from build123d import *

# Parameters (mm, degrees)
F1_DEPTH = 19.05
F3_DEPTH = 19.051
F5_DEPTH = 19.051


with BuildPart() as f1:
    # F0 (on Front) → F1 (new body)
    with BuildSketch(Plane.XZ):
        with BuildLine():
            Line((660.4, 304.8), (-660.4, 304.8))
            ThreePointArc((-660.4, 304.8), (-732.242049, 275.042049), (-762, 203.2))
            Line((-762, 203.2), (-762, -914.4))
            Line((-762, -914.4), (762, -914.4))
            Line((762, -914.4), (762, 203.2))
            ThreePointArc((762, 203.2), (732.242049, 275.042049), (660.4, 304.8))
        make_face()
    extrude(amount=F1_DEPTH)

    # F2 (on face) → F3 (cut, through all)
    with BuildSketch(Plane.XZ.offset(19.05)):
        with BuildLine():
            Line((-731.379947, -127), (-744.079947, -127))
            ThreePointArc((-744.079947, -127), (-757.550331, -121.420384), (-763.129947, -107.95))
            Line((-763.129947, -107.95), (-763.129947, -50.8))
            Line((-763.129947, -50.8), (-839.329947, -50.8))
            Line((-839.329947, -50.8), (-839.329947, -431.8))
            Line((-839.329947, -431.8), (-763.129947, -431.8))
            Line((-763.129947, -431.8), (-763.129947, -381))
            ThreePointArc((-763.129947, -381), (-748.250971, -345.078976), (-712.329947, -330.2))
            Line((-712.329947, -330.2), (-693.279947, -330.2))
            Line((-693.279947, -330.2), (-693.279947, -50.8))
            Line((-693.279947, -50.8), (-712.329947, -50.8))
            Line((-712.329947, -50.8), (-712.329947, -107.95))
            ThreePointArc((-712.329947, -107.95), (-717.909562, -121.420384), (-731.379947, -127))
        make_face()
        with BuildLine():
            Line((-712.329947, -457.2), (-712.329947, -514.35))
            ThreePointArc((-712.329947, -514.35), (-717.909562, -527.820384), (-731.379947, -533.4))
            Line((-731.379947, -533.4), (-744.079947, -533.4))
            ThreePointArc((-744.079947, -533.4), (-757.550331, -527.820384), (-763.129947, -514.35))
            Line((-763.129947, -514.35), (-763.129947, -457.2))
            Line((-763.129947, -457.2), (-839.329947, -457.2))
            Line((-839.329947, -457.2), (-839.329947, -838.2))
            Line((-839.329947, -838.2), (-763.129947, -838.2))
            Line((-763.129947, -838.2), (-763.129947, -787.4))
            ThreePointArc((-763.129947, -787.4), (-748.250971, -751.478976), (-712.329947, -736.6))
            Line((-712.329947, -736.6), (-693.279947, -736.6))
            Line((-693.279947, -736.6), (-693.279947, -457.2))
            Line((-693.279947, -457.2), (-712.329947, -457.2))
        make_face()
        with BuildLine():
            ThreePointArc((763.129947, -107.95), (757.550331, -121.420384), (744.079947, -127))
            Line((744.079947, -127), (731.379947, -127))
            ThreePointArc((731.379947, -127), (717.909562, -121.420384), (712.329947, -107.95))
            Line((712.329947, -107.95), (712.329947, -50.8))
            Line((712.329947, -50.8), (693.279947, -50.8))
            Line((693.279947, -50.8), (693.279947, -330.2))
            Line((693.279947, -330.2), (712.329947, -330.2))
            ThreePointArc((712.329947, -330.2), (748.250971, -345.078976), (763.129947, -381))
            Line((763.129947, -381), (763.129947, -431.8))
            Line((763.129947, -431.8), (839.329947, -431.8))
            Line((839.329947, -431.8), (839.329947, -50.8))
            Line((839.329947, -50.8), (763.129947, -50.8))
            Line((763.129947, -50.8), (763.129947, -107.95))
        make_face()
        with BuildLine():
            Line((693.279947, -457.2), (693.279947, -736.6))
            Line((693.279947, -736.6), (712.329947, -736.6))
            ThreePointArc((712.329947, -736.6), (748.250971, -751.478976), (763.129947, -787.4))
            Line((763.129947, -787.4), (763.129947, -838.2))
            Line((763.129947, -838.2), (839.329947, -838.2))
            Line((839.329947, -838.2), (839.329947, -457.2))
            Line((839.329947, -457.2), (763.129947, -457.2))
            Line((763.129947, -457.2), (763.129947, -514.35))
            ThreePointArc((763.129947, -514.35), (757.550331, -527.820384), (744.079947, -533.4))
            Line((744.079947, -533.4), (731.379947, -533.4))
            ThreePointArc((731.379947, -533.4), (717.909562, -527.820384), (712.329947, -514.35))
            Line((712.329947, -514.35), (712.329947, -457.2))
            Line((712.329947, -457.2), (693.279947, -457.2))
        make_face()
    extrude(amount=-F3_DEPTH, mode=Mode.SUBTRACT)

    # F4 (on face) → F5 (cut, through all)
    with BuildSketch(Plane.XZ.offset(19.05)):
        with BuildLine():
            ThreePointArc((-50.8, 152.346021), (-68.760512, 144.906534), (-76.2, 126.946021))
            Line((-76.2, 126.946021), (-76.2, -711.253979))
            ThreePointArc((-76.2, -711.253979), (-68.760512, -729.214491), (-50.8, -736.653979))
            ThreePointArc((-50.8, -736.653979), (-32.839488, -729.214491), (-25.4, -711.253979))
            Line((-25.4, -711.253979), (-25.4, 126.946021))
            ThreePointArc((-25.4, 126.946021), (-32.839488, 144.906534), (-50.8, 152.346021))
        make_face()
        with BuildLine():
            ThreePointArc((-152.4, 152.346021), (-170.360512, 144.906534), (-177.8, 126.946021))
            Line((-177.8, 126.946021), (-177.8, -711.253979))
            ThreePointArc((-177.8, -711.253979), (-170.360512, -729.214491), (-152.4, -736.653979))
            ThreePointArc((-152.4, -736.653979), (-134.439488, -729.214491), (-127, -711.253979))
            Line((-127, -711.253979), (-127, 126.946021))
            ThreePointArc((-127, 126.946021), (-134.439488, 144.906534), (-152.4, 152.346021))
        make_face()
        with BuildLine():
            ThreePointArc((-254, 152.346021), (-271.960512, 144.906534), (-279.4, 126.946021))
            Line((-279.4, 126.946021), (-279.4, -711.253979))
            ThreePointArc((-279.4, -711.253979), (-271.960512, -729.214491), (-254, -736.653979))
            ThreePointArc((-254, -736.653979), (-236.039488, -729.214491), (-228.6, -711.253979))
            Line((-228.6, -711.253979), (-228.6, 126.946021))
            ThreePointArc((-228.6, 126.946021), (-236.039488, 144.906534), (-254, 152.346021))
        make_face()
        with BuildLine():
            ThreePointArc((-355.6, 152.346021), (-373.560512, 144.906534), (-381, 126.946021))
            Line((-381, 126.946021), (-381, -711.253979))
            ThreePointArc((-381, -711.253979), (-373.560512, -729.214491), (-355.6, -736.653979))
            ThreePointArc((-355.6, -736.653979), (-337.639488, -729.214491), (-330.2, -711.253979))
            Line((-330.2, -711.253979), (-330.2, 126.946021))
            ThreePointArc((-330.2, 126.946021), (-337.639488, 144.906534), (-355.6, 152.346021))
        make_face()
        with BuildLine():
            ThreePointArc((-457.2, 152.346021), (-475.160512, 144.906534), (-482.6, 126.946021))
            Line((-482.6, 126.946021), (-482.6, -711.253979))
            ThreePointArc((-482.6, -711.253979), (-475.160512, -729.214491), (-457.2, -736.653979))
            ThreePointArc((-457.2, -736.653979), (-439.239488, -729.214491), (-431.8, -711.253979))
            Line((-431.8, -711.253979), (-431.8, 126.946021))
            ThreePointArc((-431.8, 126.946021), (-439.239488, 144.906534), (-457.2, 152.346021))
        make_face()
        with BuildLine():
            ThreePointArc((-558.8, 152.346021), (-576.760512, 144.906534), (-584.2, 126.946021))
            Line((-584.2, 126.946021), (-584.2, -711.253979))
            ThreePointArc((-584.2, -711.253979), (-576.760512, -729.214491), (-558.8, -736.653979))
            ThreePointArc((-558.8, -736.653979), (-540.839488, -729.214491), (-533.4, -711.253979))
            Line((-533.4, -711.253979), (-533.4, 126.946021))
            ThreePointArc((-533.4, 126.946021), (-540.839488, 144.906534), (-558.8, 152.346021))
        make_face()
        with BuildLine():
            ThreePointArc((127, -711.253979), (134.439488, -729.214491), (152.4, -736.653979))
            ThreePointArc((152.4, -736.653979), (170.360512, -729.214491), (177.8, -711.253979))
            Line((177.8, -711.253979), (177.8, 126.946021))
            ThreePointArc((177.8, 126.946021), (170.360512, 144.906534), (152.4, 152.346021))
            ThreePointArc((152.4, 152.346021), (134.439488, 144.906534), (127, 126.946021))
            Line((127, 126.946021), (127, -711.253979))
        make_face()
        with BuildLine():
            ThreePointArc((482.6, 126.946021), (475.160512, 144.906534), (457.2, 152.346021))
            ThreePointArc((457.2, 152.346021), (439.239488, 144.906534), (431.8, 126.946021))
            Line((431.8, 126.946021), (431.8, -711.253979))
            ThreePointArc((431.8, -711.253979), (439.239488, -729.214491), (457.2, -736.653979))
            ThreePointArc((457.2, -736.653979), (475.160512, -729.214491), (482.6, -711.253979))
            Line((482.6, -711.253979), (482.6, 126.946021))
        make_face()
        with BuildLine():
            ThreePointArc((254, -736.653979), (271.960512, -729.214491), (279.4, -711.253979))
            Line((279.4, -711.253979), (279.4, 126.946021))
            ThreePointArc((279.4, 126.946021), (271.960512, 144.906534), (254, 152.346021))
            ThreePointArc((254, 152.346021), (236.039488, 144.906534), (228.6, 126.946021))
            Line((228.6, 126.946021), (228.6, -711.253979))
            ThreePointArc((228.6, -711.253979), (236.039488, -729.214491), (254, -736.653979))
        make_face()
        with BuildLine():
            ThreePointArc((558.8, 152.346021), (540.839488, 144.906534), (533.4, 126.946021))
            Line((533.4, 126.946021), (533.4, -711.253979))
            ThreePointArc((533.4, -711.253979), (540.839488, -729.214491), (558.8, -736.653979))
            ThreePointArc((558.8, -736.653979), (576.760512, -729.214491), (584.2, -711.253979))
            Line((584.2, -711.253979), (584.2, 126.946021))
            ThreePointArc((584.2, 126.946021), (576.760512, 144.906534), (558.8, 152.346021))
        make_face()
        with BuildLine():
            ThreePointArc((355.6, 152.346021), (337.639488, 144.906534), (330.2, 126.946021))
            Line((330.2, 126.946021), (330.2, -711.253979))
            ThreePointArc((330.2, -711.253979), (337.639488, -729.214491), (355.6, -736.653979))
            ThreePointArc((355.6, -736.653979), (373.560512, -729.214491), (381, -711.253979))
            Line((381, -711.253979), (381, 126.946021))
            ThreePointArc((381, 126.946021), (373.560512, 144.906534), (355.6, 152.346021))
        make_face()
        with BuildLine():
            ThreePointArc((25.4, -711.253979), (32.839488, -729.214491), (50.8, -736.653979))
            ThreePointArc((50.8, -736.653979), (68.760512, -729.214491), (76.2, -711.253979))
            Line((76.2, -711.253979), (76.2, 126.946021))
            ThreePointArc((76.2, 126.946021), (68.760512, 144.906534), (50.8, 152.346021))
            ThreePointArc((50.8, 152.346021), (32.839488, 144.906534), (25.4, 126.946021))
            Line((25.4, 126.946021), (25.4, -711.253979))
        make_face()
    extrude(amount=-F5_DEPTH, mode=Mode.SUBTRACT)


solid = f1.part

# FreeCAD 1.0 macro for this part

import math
import FreeCAD as App
import Part
import Sketcher
from FreeCAD import Vector
Q = App.Units.Quantity

doc = App.newDocument("Part")
body = doc.addObject("PartDesign::Body", "Body")

sketch1 = body.newObject("Sketcher::SketchObject", "Sketch")
sketch1.AttachmentSupport = (doc.getObject("XZ_Plane"), [""])
sketch1.MapMode = "FlatFace"
sketch1.addGeometry([
    Part.LineSegment(Vector(660, 305, 0), Vector(-660, 305, 0)),
    Part.ArcOfCircle(Part.Circle(Vector(-660, 203, 0), Vector(0, 0, 1), 102), math.radians(90), math.radians(180)),
    Part.LineSegment(Vector(-762, 203, 0), Vector(-762, -914, 0)),
    Part.LineSegment(Vector(-762, -914, 0), Vector(762, -914, 0)),
    Part.LineSegment(Vector(762, -914, 0), Vector(762, 203, 0)),
    Part.ArcOfCircle(Part.Circle(Vector(660, 203, 0), Vector(0, 0, 1), 102), math.radians(0), math.radians(90)),
], False)
sketch1.addConstraint([
    Sketcher.Constraint("Tangent", 0, 2, 1, 1),
    Sketcher.Constraint("Tangent", 1, 2, 2, 1),
    Sketcher.Constraint("Coincident", 2, 2, 3, 1),
    Sketcher.Constraint("Coincident", 3, 2, 4, 1),
    Sketcher.Constraint("Tangent", 4, 2, 5, 1),
    Sketcher.Constraint("Tangent", 5, 2, 0, 1),
    Sketcher.Constraint("Horizontal", 0),
    Sketcher.Constraint("Vertical", 2),
    Sketcher.Constraint("Horizontal", 3),
    Sketcher.Constraint("Vertical", 4),
    Sketcher.Constraint("Equal", 1, 5),
    Sketcher.Constraint("Radius", 1, Q("4 in")),
    Sketcher.Constraint("DistanceX", 0, 2, 0, 1, Q("52 in")),
    Sketcher.Constraint("DistanceY", 2, 2, 2, 1, Q("44 in")),
    Sketcher.Constraint("DistanceX", 1, 3, -1, 1, Q("26 in")),
    Sketcher.Constraint("DistanceY", -1, 1, 1, 3, Q("8 in")),
])
pad1 = body.newObject("PartDesign::Pad", "Pad")
pad1.Profile = sketch1
pad1.Length = Q("0.75 in")

sketch2 = body.newObject("Sketcher::SketchObject", "Sketch001")
sketch2.AttachmentSupport = (doc.getObject("XZ_Plane"), [""])
sketch2.MapMode = "FlatFace"
sketch2.AttachmentOffset = App.Placement(Vector(0, 0, 0.75 * 25.4), App.Rotation())
sketch2.addGeometry([
    Part.LineSegment(Vector(-731, -127, 0), Vector(-744, -127, 0)),
    Part.ArcOfCircle(Part.Circle(Vector(-744, -108, 0), Vector(0, 0, 1), 19), math.radians(-180), math.radians(-90)),
    Part.LineSegment(Vector(-763, -108, 0), Vector(-763, -51, 0)),
    Part.LineSegment(Vector(-763, -51, 0), Vector(-839, -51, 0)),
    Part.LineSegment(Vector(-839, -51, 0), Vector(-839, -432, 0)),
    Part.LineSegment(Vector(-839, -432, 0), Vector(-763, -432, 0)),
    Part.LineSegment(Vector(-763, -432, 0), Vector(-763, -381, 0)),
    Part.ArcOfCircle(Part.Circle(Vector(-712, -381, 0), Vector(0, 0, 1), 51), math.radians(90), math.radians(180)),
    Part.LineSegment(Vector(-712, -330, 0), Vector(-693, -330, 0)),
    Part.LineSegment(Vector(-693, -330, 0), Vector(-693, -51, 0)),
    Part.LineSegment(Vector(-693, -51, 0), Vector(-712, -51, 0)),
    Part.LineSegment(Vector(-712, -51, 0), Vector(-712, -108, 0)),
    Part.ArcOfCircle(Part.Circle(Vector(-731, -108, 0), Vector(0, 0, 1), 19), math.radians(-90), math.radians(0)),
    Part.LineSegment(Vector(-712, -457, 0), Vector(-712, -514, 0)),
    Part.ArcOfCircle(Part.Circle(Vector(-731, -514, 0), Vector(0, 0, 1), 19), math.radians(-90), math.radians(0)),
    Part.LineSegment(Vector(-731, -533, 0), Vector(-744, -533, 0)),
    Part.ArcOfCircle(Part.Circle(Vector(-744, -514, 0), Vector(0, 0, 1), 19), math.radians(-180), math.radians(-90)),
    Part.LineSegment(Vector(-763, -514, 0), Vector(-763, -457, 0)),
    Part.LineSegment(Vector(-763, -457, 0), Vector(-839, -457, 0)),
    Part.LineSegment(Vector(-839, -457, 0), Vector(-839, -838, 0)),
    Part.LineSegment(Vector(-839, -838, 0), Vector(-763, -838, 0)),
    Part.LineSegment(Vector(-763, -838, 0), Vector(-763, -787, 0)),
    Part.ArcOfCircle(Part.Circle(Vector(-712, -787, 0), Vector(0, 0, 1), 51), math.radians(90), math.radians(180)),
    Part.LineSegment(Vector(-712, -737, 0), Vector(-693, -737, 0)),
    Part.LineSegment(Vector(-693, -737, 0), Vector(-693, -457, 0)),
    Part.LineSegment(Vector(-693, -457, 0), Vector(-712, -457, 0)),
    Part.ArcOfCircle(Part.Circle(Vector(744, -108, 0), Vector(0, 0, 1), 19), math.radians(-90), math.radians(0)),
    Part.LineSegment(Vector(744, -127, 0), Vector(731, -127, 0)),
    Part.ArcOfCircle(Part.Circle(Vector(731, -108, 0), Vector(0, 0, 1), 19), math.radians(180), math.radians(270)),
    Part.LineSegment(Vector(712, -108, 0), Vector(712, -51, 0)),
    Part.LineSegment(Vector(712, -51, 0), Vector(693, -51, 0)),
    Part.LineSegment(Vector(693, -51, 0), Vector(693, -330, 0)),
    Part.LineSegment(Vector(693, -330, 0), Vector(712, -330, 0)),
    Part.ArcOfCircle(Part.Circle(Vector(712, -381, 0), Vector(0, 0, 1), 51), math.radians(0), math.radians(90)),
    Part.LineSegment(Vector(763, -381, 0), Vector(763, -432, 0)),
    Part.LineSegment(Vector(763, -432, 0), Vector(839, -432, 0)),
    Part.LineSegment(Vector(839, -432, 0), Vector(839, -51, 0)),
    Part.LineSegment(Vector(839, -51, 0), Vector(763, -51, 0)),
    Part.LineSegment(Vector(763, -51, 0), Vector(763, -108, 0)),
    Part.LineSegment(Vector(693, -457, 0), Vector(693, -737, 0)),
    Part.LineSegment(Vector(693, -737, 0), Vector(712, -737, 0)),
    Part.ArcOfCircle(Part.Circle(Vector(712, -787, 0), Vector(0, 0, 1), 51), math.radians(0), math.radians(90)),
    Part.LineSegment(Vector(763, -787, 0), Vector(763, -838, 0)),
    Part.LineSegment(Vector(763, -838, 0), Vector(839, -838, 0)),
    Part.LineSegment(Vector(839, -838, 0), Vector(839, -457, 0)),
    Part.LineSegment(Vector(839, -457, 0), Vector(763, -457, 0)),
    Part.LineSegment(Vector(763, -457, 0), Vector(763, -514, 0)),
    Part.ArcOfCircle(Part.Circle(Vector(744, -514, 0), Vector(0, 0, 1), 19), math.radians(-90), math.radians(0)),
    Part.LineSegment(Vector(744, -533, 0), Vector(731, -533, 0)),
    Part.ArcOfCircle(Part.Circle(Vector(731, -514, 0), Vector(0, 0, 1), 19), math.radians(180), math.radians(270)),
    Part.LineSegment(Vector(712, -514, 0), Vector(712, -457, 0)),
    Part.LineSegment(Vector(712, -457, 0), Vector(693, -457, 0)),
], False)
sketch2.addConstraint([
    Sketcher.Constraint("Tangent", 0, 2, 1, 2),
    Sketcher.Constraint("Tangent", 1, 1, 2, 1),
    Sketcher.Constraint("Coincident", 2, 2, 3, 1),
    Sketcher.Constraint("Coincident", 3, 2, 4, 1),
    Sketcher.Constraint("Coincident", 4, 2, 5, 1),
    Sketcher.Constraint("Coincident", 5, 2, 6, 1),
    Sketcher.Constraint("Tangent", 6, 2, 7, 2),
    Sketcher.Constraint("Tangent", 7, 1, 8, 1),
    Sketcher.Constraint("Coincident", 8, 2, 9, 1),
    Sketcher.Constraint("Coincident", 9, 2, 10, 1),
    Sketcher.Constraint("Coincident", 10, 2, 11, 1),
    Sketcher.Constraint("Tangent", 11, 2, 12, 2),
    Sketcher.Constraint("Tangent", 12, 1, 0, 1),
    Sketcher.Constraint("Tangent", 13, 2, 14, 2),
    Sketcher.Constraint("Tangent", 14, 1, 15, 1),
    Sketcher.Constraint("Tangent", 15, 2, 16, 2),
    Sketcher.Constraint("Tangent", 16, 1, 17, 1),
    Sketcher.Constraint("Coincident", 17, 2, 18, 1),
    Sketcher.Constraint("Coincident", 18, 2, 19, 1),
    Sketcher.Constraint("Coincident", 19, 2, 20, 1),
    Sketcher.Constraint("Coincident", 20, 2, 21, 1),
    Sketcher.Constraint("Tangent", 21, 2, 22, 2),
    Sketcher.Constraint("Tangent", 22, 1, 23, 1),
    Sketcher.Constraint("Coincident", 23, 2, 24, 1),
    Sketcher.Constraint("Coincident", 24, 2, 25, 1),
    Sketcher.Constraint("Coincident", 25, 2, 13, 1),
    Sketcher.Constraint("Tangent", 26, 1, 27, 1),
    Sketcher.Constraint("Tangent", 27, 2, 28, 2),
    Sketcher.Constraint("Tangent", 28, 1, 29, 1),
    Sketcher.Constraint("Coincident", 29, 2, 30, 1),
    Sketcher.Constraint("Coincident", 30, 2, 31, 1),
    Sketcher.Constraint("Coincident", 31, 2, 32, 1),
    Sketcher.Constraint("Tangent", 32, 2, 33, 2),
    Sketcher.Constraint("Tangent", 33, 1, 34, 1),
    Sketcher.Constraint("Coincident", 34, 2, 35, 1),
    Sketcher.Constraint("Coincident", 35, 2, 36, 1),
    Sketcher.Constraint("Coincident", 36, 2, 37, 1),
    Sketcher.Constraint("Coincident", 37, 2, 38, 1),
    Sketcher.Constraint("Tangent", 38, 2, 26, 2),
    Sketcher.Constraint("Coincident", 39, 2, 40, 1),
    Sketcher.Constraint("Tangent", 40, 2, 41, 2),
    Sketcher.Constraint("Tangent", 41, 1, 42, 1),
    Sketcher.Constraint("Coincident", 42, 2, 43, 1),
    Sketcher.Constraint("Coincident", 43, 2, 44, 1),
    Sketcher.Constraint("Coincident", 44, 2, 45, 1),
    Sketcher.Constraint("Coincident", 45, 2, 46, 1),
    Sketcher.Constraint("Tangent", 46, 2, 47, 2),
    Sketcher.Constraint("Tangent", 47, 1, 48, 1),
    Sketcher.Constraint("Tangent", 48, 2, 49, 2),
    Sketcher.Constraint("Tangent", 49, 1, 50, 1),
    Sketcher.Constraint("Coincident", 50, 2, 51, 1),
    Sketcher.Constraint("Coincident", 51, 2, 39, 1),
    Sketcher.Constraint("Horizontal", 0),
    Sketcher.Constraint("Vertical", 2),
    Sketcher.Constraint("Horizontal", 3),
    Sketcher.Constraint("Vertical", 4),
    Sketcher.Constraint("Horizontal", 5),
    Sketcher.Constraint("Vertical", 6),
    Sketcher.Constraint("Horizontal", 8),
    Sketcher.Constraint("Vertical", 9),
    Sketcher.Constraint("Horizontal", 10),
    Sketcher.Constraint("Vertical", 11),
    Sketcher.Constraint("Vertical", 13),
    Sketcher.Constraint("Horizontal", 15),
    Sketcher.Constraint("Vertical", 17),
    Sketcher.Constraint("Horizontal", 18),
    Sketcher.Constraint("Vertical", 19),
    Sketcher.Constraint("Horizontal", 20),
    Sketcher.Constraint("Vertical", 21),
    Sketcher.Constraint("Horizontal", 23),
    Sketcher.Constraint("Vertical", 24),
    Sketcher.Constraint("Horizontal", 25),
    Sketcher.Constraint("Horizontal", 27),
    Sketcher.Constraint("Vertical", 29),
    Sketcher.Constraint("Horizontal", 30),
    Sketcher.Constraint("Vertical", 31),
    Sketcher.Constraint("Horizontal", 32),
    Sketcher.Constraint("Vertical", 34),
    Sketcher.Constraint("Horizontal", 35),
    Sketcher.Constraint("Vertical", 36),
    Sketcher.Constraint("Horizontal", 37),
    Sketcher.Constraint("Vertical", 38),
    Sketcher.Constraint("Vertical", 39),
    Sketcher.Constraint("Horizontal", 40),
    Sketcher.Constraint("Vertical", 42),
    Sketcher.Constraint("Horizontal", 43),
    Sketcher.Constraint("Vertical", 44),
    Sketcher.Constraint("Horizontal", 45),
    Sketcher.Constraint("Vertical", 46),
    Sketcher.Constraint("Horizontal", 48),
    Sketcher.Constraint("Vertical", 50),
    Sketcher.Constraint("Horizontal", 51),
    Sketcher.Constraint("Equal", 1, 12),
    Sketcher.Constraint("Equal", 12, 14),
    Sketcher.Constraint("Equal", 14, 16),
    Sketcher.Constraint("Equal", 7, 22),
    Sketcher.Constraint("Equal", 16, 26),
    Sketcher.Constraint("Equal", 26, 28),
    Sketcher.Constraint("Equal", 22, 33),
    Sketcher.Constraint("Equal", 33, 41),
    Sketcher.Constraint("Equal", 28, 47),
    Sketcher.Constraint("Equal", 47, 49),
    Sketcher.Constraint("Symmetric", 1, 3, 26, 3, -2),
    Sketcher.Constraint("Symmetric", 7, 3, 33, 3, -2),
    Sketcher.Constraint("Symmetric", 22, 3, 41, 3, -2),
    Sketcher.Constraint("Symmetric", 16, 3, 47, 3, -2),
    Sketcher.Constraint("Symmetric", 10, 2, 29, 2, -2),
    Sketcher.Constraint("Symmetric", 4, 2, 35, 2, -2),
    Sketcher.Constraint("Symmetric", 19, 2, 43, 2, -2),
    Sketcher.Constraint("Symmetric", 25, 2, 50, 2, -2),
    Sketcher.Constraint("Horizontal", 3, 2, 9, 2),
    Sketcher.Constraint("Horizontal", 18, 2, 24, 2),
    Sketcher.Constraint("Horizontal", 30, 2, 36, 2),
    Sketcher.Constraint("Horizontal", 25, 2, 44, 2),
    Sketcher.Constraint("Vertical", 12, 3, 14, 3),
    Sketcher.Constraint("Vertical", 1, 3, 16, 3),
    Sketcher.Constraint("Vertical", 7, 3, 22, 3),
    Sketcher.Constraint("Vertical", 2, 2, 5, 2),
    Sketcher.Constraint("Vertical", 7, 1, 10, 2),
    Sketcher.Constraint("Vertical", 4, 2, 18, 2),
    Sketcher.Constraint("Vertical", 9, 2, 23, 2),
    Sketcher.Constraint("Vertical", 31, 2, 39, 2),
    Sketcher.Constraint("Equal", 25, 30),
    Sketcher.Constraint("Equal", 11, 13),
    Sketcher.Constraint("Equal", 4, 19),
    Sketcher.Constraint("Equal", 6, 21),
    Sketcher.Constraint("Radius", 7, Q("2.0000001 in")),
    Sketcher.Constraint("DistanceX", 3, 2, 3, 1, Q("3 in")),
    Sketcher.Constraint("DistanceY", 4, 2, 4, 1, Q("15 in")),
    Sketcher.Constraint("DistanceY", 6, 1, 6, 2, Q("2 in")),
    Sketcher.Constraint("Radius", 1, Q("0.75 in")),
    Sketcher.Constraint("DistanceY", 7, 3, -1, 1, Q("15.0000001 in")),
    Sketcher.Constraint("DistanceY", 22, 3, -1, 1, Q("31.0000001 in")),
    Sketcher.Constraint("DistanceY", 0, 2, -1, 1, Q("5 in")),
    Sketcher.Constraint("DistanceX", 8, 1, 8, 2, Q("0.75 in")),
    Sketcher.Constraint("DistanceX", 1, 3, -1, 1, Q("744.079946 mm")),
])
pocket1 = body.newObject("PartDesign::Pocket", "Pocket")
pocket1.Profile = sketch2
pocket1.Type = "ThroughAll"

sketch3 = body.newObject("Sketcher::SketchObject", "Sketch002")
sketch3.AttachmentSupport = (doc.getObject("XZ_Plane"), [""])
sketch3.MapMode = "FlatFace"
sketch3.AttachmentOffset = App.Placement(Vector(0, 0, 0.75 * 25.4), App.Rotation())
sketch3.addGeometry([
    Part.ArcOfCircle(Part.Circle(Vector(-51, 127, 0), Vector(0, 0, 1), 25), math.radians(90), math.radians(180)),
    Part.LineSegment(Vector(-76, 127, 0), Vector(-76, -711, 0)),
    Part.ArcOfCircle(Part.Circle(Vector(-51, -711, 0), Vector(0, 0, 1), 25), math.radians(-180), math.radians(-90)),
    Part.ArcOfCircle(Part.Circle(Vector(-51, -711, 0), Vector(0, 0, 1), 25), math.radians(-90), math.radians(0)),
    Part.LineSegment(Vector(-25, -711, 0), Vector(-25, 127, 0)),
    Part.ArcOfCircle(Part.Circle(Vector(-51, 127, 0), Vector(0, 0, 1), 25), math.radians(0), math.radians(90)),
    Part.ArcOfCircle(Part.Circle(Vector(-152, 127, 0), Vector(0, 0, 1), 25), math.radians(90), math.radians(180)),
    Part.LineSegment(Vector(-178, 127, 0), Vector(-178, -711, 0)),
    Part.ArcOfCircle(Part.Circle(Vector(-152, -711, 0), Vector(0, 0, 1), 25), math.radians(-180), math.radians(-90)),
    Part.ArcOfCircle(Part.Circle(Vector(-152, -711, 0), Vector(0, 0, 1), 25), math.radians(-90), math.radians(0)),
    Part.LineSegment(Vector(-127, -711, 0), Vector(-127, 127, 0)),
    Part.ArcOfCircle(Part.Circle(Vector(-152, 127, 0), Vector(0, 0, 1), 25), math.radians(0), math.radians(90)),
    Part.ArcOfCircle(Part.Circle(Vector(-254, 127, 0), Vector(0, 0, 1), 25), math.radians(90), math.radians(180)),
    Part.LineSegment(Vector(-279, 127, 0), Vector(-279, -711, 0)),
    Part.ArcOfCircle(Part.Circle(Vector(-254, -711, 0), Vector(0, 0, 1), 25), math.radians(-180), math.radians(-90)),
    Part.ArcOfCircle(Part.Circle(Vector(-254, -711, 0), Vector(0, 0, 1), 25), math.radians(-90), math.radians(0)),
    Part.LineSegment(Vector(-229, -711, 0), Vector(-229, 127, 0)),
    Part.ArcOfCircle(Part.Circle(Vector(-254, 127, 0), Vector(0, 0, 1), 25), math.radians(0), math.radians(90)),
    Part.ArcOfCircle(Part.Circle(Vector(-356, 127, 0), Vector(0, 0, 1), 25), math.radians(90), math.radians(180)),
    Part.LineSegment(Vector(-381, 127, 0), Vector(-381, -711, 0)),
    Part.ArcOfCircle(Part.Circle(Vector(-356, -711, 0), Vector(0, 0, 1), 25), math.radians(-180), math.radians(-90)),
    Part.ArcOfCircle(Part.Circle(Vector(-356, -711, 0), Vector(0, 0, 1), 25), math.radians(-90), math.radians(0)),
    Part.LineSegment(Vector(-330, -711, 0), Vector(-330, 127, 0)),
    Part.ArcOfCircle(Part.Circle(Vector(-356, 127, 0), Vector(0, 0, 1), 25), math.radians(0), math.radians(90)),
    Part.ArcOfCircle(Part.Circle(Vector(-457, 127, 0), Vector(0, 0, 1), 25), math.radians(90), math.radians(180)),
    Part.LineSegment(Vector(-483, 127, 0), Vector(-483, -711, 0)),
    Part.ArcOfCircle(Part.Circle(Vector(-457, -711, 0), Vector(0, 0, 1), 25), math.radians(-180), math.radians(-90)),
    Part.ArcOfCircle(Part.Circle(Vector(-457, -711, 0), Vector(0, 0, 1), 25), math.radians(-90), math.radians(0)),
    Part.LineSegment(Vector(-432, -711, 0), Vector(-432, 127, 0)),
    Part.ArcOfCircle(Part.Circle(Vector(-457, 127, 0), Vector(0, 0, 1), 25), math.radians(0), math.radians(90)),
    Part.ArcOfCircle(Part.Circle(Vector(-559, 127, 0), Vector(0, 0, 1), 25), math.radians(90), math.radians(180)),
    Part.LineSegment(Vector(-584, 127, 0), Vector(-584, -711, 0)),
    Part.ArcOfCircle(Part.Circle(Vector(-559, -711, 0), Vector(0, 0, 1), 25), math.radians(-180), math.radians(-90)),
    Part.ArcOfCircle(Part.Circle(Vector(-559, -711, 0), Vector(0, 0, 1), 25), math.radians(-90), math.radians(0)),
    Part.LineSegment(Vector(-533, -711, 0), Vector(-533, 127, 0)),
    Part.ArcOfCircle(Part.Circle(Vector(-559, 127, 0), Vector(0, 0, 1), 25), math.radians(0), math.radians(90)),
    Part.ArcOfCircle(Part.Circle(Vector(152, -711, 0), Vector(0, 0, 1), 25), math.radians(-180), math.radians(-90)),
    Part.ArcOfCircle(Part.Circle(Vector(152, -711, 0), Vector(0, 0, 1), 25), math.radians(-90), math.radians(0)),
    Part.LineSegment(Vector(178, -711, 0), Vector(178, 127, 0)),
    Part.ArcOfCircle(Part.Circle(Vector(152, 127, 0), Vector(0, 0, 1), 25), math.radians(0), math.radians(90)),
    Part.ArcOfCircle(Part.Circle(Vector(152, 127, 0), Vector(0, 0, 1), 25), math.radians(90), math.radians(180)),
    Part.LineSegment(Vector(127, 127, 0), Vector(127, -711, 0)),
    Part.ArcOfCircle(Part.Circle(Vector(457, 127, 0), Vector(0, 0, 1), 25), math.radians(0), math.radians(90)),
    Part.ArcOfCircle(Part.Circle(Vector(457, 127, 0), Vector(0, 0, 1), 25), math.radians(90), math.radians(180)),
    Part.LineSegment(Vector(432, 127, 0), Vector(432, -711, 0)),
    Part.ArcOfCircle(Part.Circle(Vector(457, -711, 0), Vector(0, 0, 1), 25), math.radians(-180), math.radians(-90)),
    Part.ArcOfCircle(Part.Circle(Vector(457, -711, 0), Vector(0, 0, 1), 25), math.radians(-90), math.radians(0)),
    Part.LineSegment(Vector(483, -711, 0), Vector(483, 127, 0)),
    Part.ArcOfCircle(Part.Circle(Vector(254, -711, 0), Vector(0, 0, 1), 25), math.radians(-90), math.radians(0)),
    Part.LineSegment(Vector(279, -711, 0), Vector(279, 127, 0)),
    Part.ArcOfCircle(Part.Circle(Vector(254, 127, 0), Vector(0, 0, 1), 25), math.radians(0), math.radians(90)),
    Part.ArcOfCircle(Part.Circle(Vector(254, 127, 0), Vector(0, 0, 1), 25), math.radians(90), math.radians(180)),
    Part.LineSegment(Vector(229, 127, 0), Vector(229, -711, 0)),
    Part.ArcOfCircle(Part.Circle(Vector(254, -711, 0), Vector(0, 0, 1), 25), math.radians(-180), math.radians(-90)),
    Part.ArcOfCircle(Part.Circle(Vector(559, 127, 0), Vector(0, 0, 1), 25), math.radians(90), math.radians(180)),
    Part.LineSegment(Vector(533, 127, 0), Vector(533, -711, 0)),
    Part.ArcOfCircle(Part.Circle(Vector(559, -711, 0), Vector(0, 0, 1), 25), math.radians(-180), math.radians(-90)),
    Part.ArcOfCircle(Part.Circle(Vector(559, -711, 0), Vector(0, 0, 1), 25), math.radians(-90), math.radians(0)),
    Part.LineSegment(Vector(584, -711, 0), Vector(584, 127, 0)),
    Part.ArcOfCircle(Part.Circle(Vector(559, 127, 0), Vector(0, 0, 1), 25), math.radians(0), math.radians(90)),
    Part.ArcOfCircle(Part.Circle(Vector(356, 127, 0), Vector(0, 0, 1), 25), math.radians(90), math.radians(180)),
    Part.LineSegment(Vector(330, 127, 0), Vector(330, -711, 0)),
    Part.ArcOfCircle(Part.Circle(Vector(356, -711, 0), Vector(0, 0, 1), 25), math.radians(-180), math.radians(-90)),
    Part.ArcOfCircle(Part.Circle(Vector(356, -711, 0), Vector(0, 0, 1), 25), math.radians(-90), math.radians(0)),
    Part.LineSegment(Vector(381, -711, 0), Vector(381, 127, 0)),
    Part.ArcOfCircle(Part.Circle(Vector(356, 127, 0), Vector(0, 0, 1), 25), math.radians(0), math.radians(90)),
    Part.ArcOfCircle(Part.Circle(Vector(51, -711, 0), Vector(0, 0, 1), 25), math.radians(-180), math.radians(-90)),
    Part.ArcOfCircle(Part.Circle(Vector(51, -711, 0), Vector(0, 0, 1), 25), math.radians(-90), math.radians(0)),
    Part.LineSegment(Vector(76, -711, 0), Vector(76, 127, 0)),
    Part.ArcOfCircle(Part.Circle(Vector(51, 127, 0), Vector(0, 0, 1), 25), math.radians(0), math.radians(90)),
    Part.ArcOfCircle(Part.Circle(Vector(51, 127, 0), Vector(0, 0, 1), 25), math.radians(90), math.radians(180)),
    Part.LineSegment(Vector(25, 127, 0), Vector(25, -711, 0)),
], False)
sketch3.addConstraint([
    Sketcher.Constraint("Tangent", 0, 2, 1, 1),
    Sketcher.Constraint("Tangent", 1, 2, 2, 1),
    Sketcher.Constraint("Tangent", 2, 2, 3, 1),
    Sketcher.Constraint("Tangent", 3, 2, 4, 1),
    Sketcher.Constraint("Tangent", 4, 2, 5, 1),
    Sketcher.Constraint("Tangent", 5, 2, 0, 1),
    Sketcher.Constraint("Tangent", 6, 2, 7, 1),
    Sketcher.Constraint("Tangent", 7, 2, 8, 1),
    Sketcher.Constraint("Tangent", 8, 2, 9, 1),
    Sketcher.Constraint("Tangent", 9, 2, 10, 1),
    Sketcher.Constraint("Tangent", 10, 2, 11, 1),
    Sketcher.Constraint("Tangent", 11, 2, 6, 1),
    Sketcher.Constraint("Tangent", 12, 2, 13, 1),
    Sketcher.Constraint("Tangent", 13, 2, 14, 1),
    Sketcher.Constraint("Tangent", 14, 2, 15, 1),
    Sketcher.Constraint("Tangent", 15, 2, 16, 1),
    Sketcher.Constraint("Tangent", 16, 2, 17, 1),
    Sketcher.Constraint("Tangent", 17, 2, 12, 1),
    Sketcher.Constraint("Tangent", 18, 2, 19, 1),
    Sketcher.Constraint("Tangent", 19, 2, 20, 1),
    Sketcher.Constraint("Tangent", 20, 2, 21, 1),
    Sketcher.Constraint("Tangent", 21, 2, 22, 1),
    Sketcher.Constraint("Tangent", 22, 2, 23, 1),
    Sketcher.Constraint("Tangent", 23, 2, 18, 1),
    Sketcher.Constraint("Tangent", 24, 2, 25, 1),
    Sketcher.Constraint("Tangent", 25, 2, 26, 1),
    Sketcher.Constraint("Tangent", 26, 2, 27, 1),
    Sketcher.Constraint("Tangent", 27, 2, 28, 1),
    Sketcher.Constraint("Tangent", 28, 2, 29, 1),
    Sketcher.Constraint("Tangent", 29, 2, 24, 1),
    Sketcher.Constraint("Tangent", 30, 2, 31, 1),
    Sketcher.Constraint("Tangent", 31, 2, 32, 1),
    Sketcher.Constraint("Tangent", 32, 2, 33, 1),
    Sketcher.Constraint("Tangent", 33, 2, 34, 1),
    Sketcher.Constraint("Tangent", 34, 2, 35, 1),
    Sketcher.Constraint("Tangent", 35, 2, 30, 1),
    Sketcher.Constraint("Tangent", 36, 2, 37, 1),
    Sketcher.Constraint("Tangent", 37, 2, 38, 1),
    Sketcher.Constraint("Tangent", 38, 2, 39, 1),
    Sketcher.Constraint("Tangent", 39, 2, 40, 1),
    Sketcher.Constraint("Tangent", 40, 2, 41, 1),
    Sketcher.Constraint("Tangent", 41, 2, 36, 1),
    Sketcher.Constraint("Tangent", 42, 2, 43, 1),
    Sketcher.Constraint("Tangent", 43, 2, 44, 1),
    Sketcher.Constraint("Tangent", 44, 2, 45, 1),
    Sketcher.Constraint("Tangent", 45, 2, 46, 1),
    Sketcher.Constraint("Tangent", 46, 2, 47, 1),
    Sketcher.Constraint("Tangent", 47, 2, 42, 1),
    Sketcher.Constraint("Tangent", 48, 2, 49, 1),
    Sketcher.Constraint("Tangent", 49, 2, 50, 1),
    Sketcher.Constraint("Tangent", 50, 2, 51, 1),
    Sketcher.Constraint("Tangent", 51, 2, 52, 1),
    Sketcher.Constraint("Tangent", 52, 2, 53, 1),
    Sketcher.Constraint("Tangent", 53, 2, 48, 1),
    Sketcher.Constraint("Tangent", 54, 2, 55, 1),
    Sketcher.Constraint("Tangent", 55, 2, 56, 1),
    Sketcher.Constraint("Tangent", 56, 2, 57, 1),
    Sketcher.Constraint("Tangent", 57, 2, 58, 1),
    Sketcher.Constraint("Tangent", 58, 2, 59, 1),
    Sketcher.Constraint("Tangent", 59, 2, 54, 1),
    Sketcher.Constraint("Tangent", 60, 2, 61, 1),
    Sketcher.Constraint("Tangent", 61, 2, 62, 1),
    Sketcher.Constraint("Tangent", 62, 2, 63, 1),
    Sketcher.Constraint("Tangent", 63, 2, 64, 1),
    Sketcher.Constraint("Tangent", 64, 2, 65, 1),
    Sketcher.Constraint("Tangent", 65, 2, 60, 1),
    Sketcher.Constraint("Tangent", 66, 2, 67, 1),
    Sketcher.Constraint("Tangent", 67, 2, 68, 1),
    Sketcher.Constraint("Tangent", 68, 2, 69, 1),
    Sketcher.Constraint("Tangent", 69, 2, 70, 1),
    Sketcher.Constraint("Tangent", 70, 2, 71, 1),
    Sketcher.Constraint("Tangent", 71, 2, 66, 1),
    Sketcher.Constraint("Vertical", 1),
    Sketcher.Constraint("Vertical", 4),
    Sketcher.Constraint("Vertical", 7),
    Sketcher.Constraint("Vertical", 10),
    Sketcher.Constraint("Vertical", 13),
    Sketcher.Constraint("Vertical", 16),
    Sketcher.Constraint("Vertical", 19),
    Sketcher.Constraint("Vertical", 22),
    Sketcher.Constraint("Vertical", 25),
    Sketcher.Constraint("Vertical", 28),
    Sketcher.Constraint("Vertical", 31),
    Sketcher.Constraint("Vertical", 34),
    Sketcher.Constraint("Vertical", 38),
    Sketcher.Constraint("Vertical", 41),
    Sketcher.Constraint("Vertical", 44),
    Sketcher.Constraint("Vertical", 47),
    Sketcher.Constraint("Vertical", 49),
    Sketcher.Constraint("Vertical", 52),
    Sketcher.Constraint("Vertical", 55),
    Sketcher.Constraint("Vertical", 58),
    Sketcher.Constraint("Vertical", 61),
    Sketcher.Constraint("Vertical", 64),
    Sketcher.Constraint("Vertical", 68),
    Sketcher.Constraint("Vertical", 71),
    Sketcher.Constraint("Equal", 0, 2),
    Sketcher.Constraint("Equal", 2, 3),
    Sketcher.Constraint("Equal", 5, 6),
    Sketcher.Constraint("Equal", 6, 8),
    Sketcher.Constraint("Equal", 8, 9),
    Sketcher.Constraint("Equal", 11, 12),
    Sketcher.Constraint("Equal", 12, 14),
    Sketcher.Constraint("Equal", 14, 15),
    Sketcher.Constraint("Equal", 17, 18),
    Sketcher.Constraint("Equal", 18, 20),
    Sketcher.Constraint("Equal", 20, 21),
    Sketcher.Constraint("Equal", 23, 24),
    Sketcher.Constraint("Equal", 24, 26),
    Sketcher.Constraint("Equal", 26, 27),
    Sketcher.Constraint("Equal", 29, 30),
    Sketcher.Constraint("Equal", 30, 32),
    Sketcher.Constraint("Equal", 32, 33),
    Sketcher.Constraint("Equal", 35, 36),
    Sketcher.Constraint("Equal", 36, 37),
    Sketcher.Constraint("Equal", 37, 39),
    Sketcher.Constraint("Equal", 40, 42),
    Sketcher.Constraint("Equal", 42, 43),
    Sketcher.Constraint("Equal", 43, 45),
    Sketcher.Constraint("Equal", 46, 48),
    Sketcher.Constraint("Equal", 48, 50),
    Sketcher.Constraint("Equal", 50, 51),
    Sketcher.Constraint("Equal", 53, 54),
    Sketcher.Constraint("Equal", 54, 56),
    Sketcher.Constraint("Equal", 56, 57),
    Sketcher.Constraint("Equal", 59, 60),
    Sketcher.Constraint("Equal", 60, 62),
    Sketcher.Constraint("Equal", 62, 63),
    Sketcher.Constraint("Equal", 65, 66),
    Sketcher.Constraint("Equal", 66, 67),
    Sketcher.Constraint("Equal", 67, 69),
    Sketcher.Constraint("Symmetric", 8, 3, 36, 3, -2),
    Sketcher.Constraint("Symmetric", 24, 3, 42, 3, -2),
    Sketcher.Constraint("Symmetric", 14, 3, 48, 3, -2),
    Sketcher.Constraint("Symmetric", 30, 3, 54, 3, -2),
    Sketcher.Constraint("Symmetric", 18, 3, 60, 3, -2),
    Sketcher.Constraint("Symmetric", 2, 3, 66, 3, -2),
    Sketcher.Constraint("Symmetric", 11, 2, 39, 2, -2),
    Sketcher.Constraint("Symmetric", 26, 2, 45, 2, -2),
    Sketcher.Constraint("Symmetric", 17, 2, 50, 2, -2),
    Sketcher.Constraint("Symmetric", 32, 2, 56, 2, -2),
    Sketcher.Constraint("Symmetric", 20, 2, 62, 2, -2),
    Sketcher.Constraint("Symmetric", 5, 2, 69, 2, -2),
    Sketcher.Constraint("Horizontal", 5, 3, 6, 3),
    Sketcher.Constraint("Horizontal", 3, 3, 8, 3),
    Sketcher.Constraint("Horizontal", 11, 3, 12, 3),
    Sketcher.Constraint("Horizontal", 9, 3, 14, 3),
    Sketcher.Constraint("Horizontal", 17, 3, 18, 3),
    Sketcher.Constraint("Horizontal", 15, 3, 20, 3),
    Sketcher.Constraint("Horizontal", 23, 3, 24, 3),
    Sketcher.Constraint("Horizontal", 21, 3, 26, 3),
    Sketcher.Constraint("Horizontal", 29, 3, 30, 3),
    Sketcher.Constraint("Horizontal", 27, 3, 32, 3),
    Sketcher.Constraint("Vertical", 5, 3, 2, 2),
    Sketcher.Constraint("Vertical", 2, 2, 5, 2),
    Sketcher.Constraint("Vertical", 11, 3, 8, 2),
    Sketcher.Constraint("Vertical", 8, 2, 11, 2),
    Sketcher.Constraint("Vertical", 17, 3, 14, 2),
    Sketcher.Constraint("Vertical", 14, 2, 17, 2),
    Sketcher.Constraint("Vertical", 23, 3, 20, 2),
    Sketcher.Constraint("Vertical", 20, 2, 23, 2),
    Sketcher.Constraint("Vertical", 29, 3, 26, 2),
    Sketcher.Constraint("Vertical", 26, 2, 29, 2),
    Sketcher.Constraint("Vertical", 35, 3, 32, 2),
    Sketcher.Constraint("Vertical", 32, 2, 35, 2),
    Sketcher.Constraint("Vertical", 40, 3, 36, 2),
    Sketcher.Constraint("Vertical", 46, 3, 42, 2),
    Sketcher.Constraint("Vertical", 50, 2, 53, 2),
    Sketcher.Constraint("Vertical", 56, 2, 59, 2),
    Sketcher.Constraint("Vertical", 62, 2, 65, 2),
    Sketcher.Constraint("Vertical", 70, 3, 66, 2),
    Sketcher.Constraint("Radius", 0, Q("1 in")),
    Sketcher.Constraint("DistanceY", 1, 2, 1, 1, Q("33 in")),
    Sketcher.Constraint("DistanceX", 0, 3, -1, 1, Q("2 in")),
    Sketcher.Constraint("DistanceX", 6, 3, -1, 1, Q("6 in")),
    Sketcher.Constraint("DistanceX", 12, 3, -1, 1, Q("10 in")),
    Sketcher.Constraint("DistanceX", 18, 3, -1, 1, Q("14 in")),
    Sketcher.Constraint("DistanceX", 24, 3, -1, 1, Q("18 in")),
    Sketcher.Constraint("DistanceX", 30, 3, -1, 1, Q("22 in")),
    Sketcher.Constraint("DistanceY", -1, 1, 0, 3, Q("126.946022 mm")),
])
pocket2 = body.newObject("PartDesign::Pocket", "Pocket001")
pocket2.Profile = sketch3
pocket2.Type = "ThroughAll"

doc.recompute()
